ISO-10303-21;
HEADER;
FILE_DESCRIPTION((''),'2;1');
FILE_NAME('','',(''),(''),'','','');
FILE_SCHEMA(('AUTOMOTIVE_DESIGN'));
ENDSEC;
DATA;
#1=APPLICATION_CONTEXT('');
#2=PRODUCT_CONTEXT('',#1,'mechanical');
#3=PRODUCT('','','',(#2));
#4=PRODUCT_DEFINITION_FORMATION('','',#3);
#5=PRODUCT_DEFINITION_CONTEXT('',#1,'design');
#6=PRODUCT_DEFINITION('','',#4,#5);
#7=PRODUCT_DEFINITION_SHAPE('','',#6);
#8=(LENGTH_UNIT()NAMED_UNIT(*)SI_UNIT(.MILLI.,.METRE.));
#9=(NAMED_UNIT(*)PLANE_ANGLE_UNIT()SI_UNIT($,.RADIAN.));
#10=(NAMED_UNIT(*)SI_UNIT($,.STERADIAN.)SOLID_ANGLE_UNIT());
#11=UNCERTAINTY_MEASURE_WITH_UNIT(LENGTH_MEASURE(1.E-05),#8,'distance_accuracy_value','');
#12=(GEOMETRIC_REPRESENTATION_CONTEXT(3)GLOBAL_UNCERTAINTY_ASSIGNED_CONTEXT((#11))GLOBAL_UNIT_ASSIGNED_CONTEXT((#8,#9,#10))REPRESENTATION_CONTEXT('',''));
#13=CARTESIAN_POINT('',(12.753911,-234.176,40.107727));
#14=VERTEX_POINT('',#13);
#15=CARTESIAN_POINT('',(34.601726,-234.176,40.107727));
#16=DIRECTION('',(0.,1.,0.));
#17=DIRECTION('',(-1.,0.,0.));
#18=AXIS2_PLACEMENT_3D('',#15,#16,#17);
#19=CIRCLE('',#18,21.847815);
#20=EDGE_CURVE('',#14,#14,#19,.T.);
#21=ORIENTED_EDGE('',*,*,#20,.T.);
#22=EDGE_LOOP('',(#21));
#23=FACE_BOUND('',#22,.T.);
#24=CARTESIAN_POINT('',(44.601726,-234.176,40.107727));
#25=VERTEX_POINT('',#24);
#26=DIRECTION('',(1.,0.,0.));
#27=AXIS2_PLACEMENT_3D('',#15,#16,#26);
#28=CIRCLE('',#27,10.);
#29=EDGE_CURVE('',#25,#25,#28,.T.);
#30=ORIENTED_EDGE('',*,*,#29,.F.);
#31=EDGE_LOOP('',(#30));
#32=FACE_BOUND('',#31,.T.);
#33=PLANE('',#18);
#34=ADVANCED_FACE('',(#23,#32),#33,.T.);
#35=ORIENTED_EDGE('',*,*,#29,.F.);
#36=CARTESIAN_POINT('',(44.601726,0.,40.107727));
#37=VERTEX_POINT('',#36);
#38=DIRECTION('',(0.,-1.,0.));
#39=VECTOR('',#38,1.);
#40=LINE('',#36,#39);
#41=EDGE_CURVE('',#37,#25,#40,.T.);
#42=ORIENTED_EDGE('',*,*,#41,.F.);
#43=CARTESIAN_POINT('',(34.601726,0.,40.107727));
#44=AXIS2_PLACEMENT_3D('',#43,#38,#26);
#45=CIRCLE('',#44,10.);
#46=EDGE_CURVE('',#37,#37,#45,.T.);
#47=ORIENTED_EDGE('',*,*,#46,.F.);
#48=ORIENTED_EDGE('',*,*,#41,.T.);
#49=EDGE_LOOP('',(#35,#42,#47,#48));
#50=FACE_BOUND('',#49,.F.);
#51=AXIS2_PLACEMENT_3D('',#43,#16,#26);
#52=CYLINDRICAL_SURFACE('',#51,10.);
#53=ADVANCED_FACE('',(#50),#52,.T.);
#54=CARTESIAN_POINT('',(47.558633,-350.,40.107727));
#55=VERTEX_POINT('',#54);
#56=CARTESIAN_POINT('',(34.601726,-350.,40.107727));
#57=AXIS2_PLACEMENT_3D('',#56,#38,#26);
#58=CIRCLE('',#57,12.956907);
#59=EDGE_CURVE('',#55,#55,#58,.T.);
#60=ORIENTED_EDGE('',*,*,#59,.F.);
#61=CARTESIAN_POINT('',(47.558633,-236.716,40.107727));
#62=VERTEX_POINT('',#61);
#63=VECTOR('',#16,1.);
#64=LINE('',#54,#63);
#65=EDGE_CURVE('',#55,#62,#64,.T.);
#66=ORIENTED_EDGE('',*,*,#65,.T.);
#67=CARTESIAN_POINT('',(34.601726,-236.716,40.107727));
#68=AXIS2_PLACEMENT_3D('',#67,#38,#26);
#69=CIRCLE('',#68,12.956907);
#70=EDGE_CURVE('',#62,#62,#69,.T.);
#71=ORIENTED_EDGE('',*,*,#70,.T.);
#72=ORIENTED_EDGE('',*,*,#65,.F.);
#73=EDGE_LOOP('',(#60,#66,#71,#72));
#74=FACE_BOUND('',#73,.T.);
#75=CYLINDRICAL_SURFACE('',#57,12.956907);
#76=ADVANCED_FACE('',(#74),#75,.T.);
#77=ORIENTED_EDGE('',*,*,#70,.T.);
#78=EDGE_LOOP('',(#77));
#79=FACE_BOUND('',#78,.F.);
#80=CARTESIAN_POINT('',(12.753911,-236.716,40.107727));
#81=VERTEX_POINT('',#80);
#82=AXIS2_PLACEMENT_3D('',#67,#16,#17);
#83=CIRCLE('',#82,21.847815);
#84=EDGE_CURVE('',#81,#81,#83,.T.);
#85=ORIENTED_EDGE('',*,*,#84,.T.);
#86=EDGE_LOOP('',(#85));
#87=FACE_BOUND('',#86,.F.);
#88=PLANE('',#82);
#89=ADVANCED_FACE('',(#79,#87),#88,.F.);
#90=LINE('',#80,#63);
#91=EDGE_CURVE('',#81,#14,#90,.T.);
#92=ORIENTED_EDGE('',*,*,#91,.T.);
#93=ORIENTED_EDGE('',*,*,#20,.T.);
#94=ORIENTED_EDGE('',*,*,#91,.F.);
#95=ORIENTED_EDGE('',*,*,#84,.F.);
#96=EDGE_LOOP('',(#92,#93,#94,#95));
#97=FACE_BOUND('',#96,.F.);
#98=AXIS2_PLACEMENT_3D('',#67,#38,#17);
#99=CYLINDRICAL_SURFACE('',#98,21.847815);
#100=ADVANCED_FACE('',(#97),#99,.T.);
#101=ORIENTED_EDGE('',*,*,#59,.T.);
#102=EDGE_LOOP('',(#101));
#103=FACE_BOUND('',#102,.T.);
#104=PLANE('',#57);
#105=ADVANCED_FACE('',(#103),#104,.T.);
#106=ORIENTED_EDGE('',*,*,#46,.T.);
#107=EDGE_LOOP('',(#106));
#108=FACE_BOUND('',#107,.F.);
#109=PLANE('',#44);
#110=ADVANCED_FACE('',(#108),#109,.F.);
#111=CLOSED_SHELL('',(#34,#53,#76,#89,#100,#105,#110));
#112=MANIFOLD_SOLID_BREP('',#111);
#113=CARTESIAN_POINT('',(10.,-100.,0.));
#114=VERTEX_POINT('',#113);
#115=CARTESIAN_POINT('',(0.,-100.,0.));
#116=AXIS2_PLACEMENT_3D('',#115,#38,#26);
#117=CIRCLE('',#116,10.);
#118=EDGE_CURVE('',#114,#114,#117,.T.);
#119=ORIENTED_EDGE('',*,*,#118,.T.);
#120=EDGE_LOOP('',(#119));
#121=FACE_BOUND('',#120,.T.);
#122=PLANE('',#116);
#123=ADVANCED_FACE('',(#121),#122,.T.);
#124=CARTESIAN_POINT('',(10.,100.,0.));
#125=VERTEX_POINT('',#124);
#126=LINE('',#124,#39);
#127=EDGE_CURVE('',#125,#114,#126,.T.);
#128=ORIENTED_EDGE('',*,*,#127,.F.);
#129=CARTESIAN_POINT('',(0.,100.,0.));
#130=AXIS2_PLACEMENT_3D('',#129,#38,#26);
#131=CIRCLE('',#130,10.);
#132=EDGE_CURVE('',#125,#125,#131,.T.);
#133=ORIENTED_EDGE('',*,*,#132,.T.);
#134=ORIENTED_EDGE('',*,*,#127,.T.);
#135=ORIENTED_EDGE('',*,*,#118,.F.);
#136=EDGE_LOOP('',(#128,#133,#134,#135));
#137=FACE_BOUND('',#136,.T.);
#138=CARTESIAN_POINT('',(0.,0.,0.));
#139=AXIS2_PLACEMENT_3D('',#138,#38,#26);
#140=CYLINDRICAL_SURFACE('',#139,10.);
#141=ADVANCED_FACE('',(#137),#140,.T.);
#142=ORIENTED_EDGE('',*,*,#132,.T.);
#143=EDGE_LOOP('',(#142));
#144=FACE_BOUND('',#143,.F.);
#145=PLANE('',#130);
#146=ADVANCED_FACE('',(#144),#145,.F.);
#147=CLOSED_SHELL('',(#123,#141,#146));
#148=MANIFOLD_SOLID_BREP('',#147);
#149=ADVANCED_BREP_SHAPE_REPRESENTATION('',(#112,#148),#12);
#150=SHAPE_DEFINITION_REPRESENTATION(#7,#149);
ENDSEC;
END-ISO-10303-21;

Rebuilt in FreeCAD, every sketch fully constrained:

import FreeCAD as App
import Part
import Sketcher

V = App.Vector

doc = App.newDocument("Part")
body = doc.addObject("PartDesign::Body", "Body")

# Sketch on XZ plane
sketch1 = doc.addObject("Sketcher::SketchObject", "Sketch")
body.addObject(sketch1)
sketch1.AttachmentSupport = (doc.XZ_Plane, [""])
sketch1.MapMode = "FlatFace"
sketch1.addGeometry(Part.Circle(V(0, 0, 0), V(0, 0, 1), 10), False)
sketch1.addConstraint(Sketcher.Constraint("Coincident", 0, 3, -1, 1))
sketch1.addConstraint(Sketcher.Constraint("Diameter", 0, 20.0))
pad1 = doc.addObject("PartDesign::Pad", "Pad")
body.addObject(pad1)
pad1.Profile = sketch1
pad1.Length = 200
pad1.Midplane = True
body2 = doc.addObject("PartDesign::Body", "Body001")

# Sketch on XZ plane
sketch2 = doc.addObject("Sketcher::SketchObject", "Sketch001")
body2.addObject(sketch2)
sketch2.AttachmentSupport = (doc.getObject("XZ_Plane001"), [""])
sketch2.MapMode = "FlatFace"
sketch2.addGeometry(Part.Circle(V(35, 40, 0), V(0, 0, 1), 10), False)
sketch2.addConstraint(Sketcher.Constraint("Diameter", 0, 20.0))
sketch2.addConstraint(Sketcher.Constraint("DistanceX", -1, 1, 0, 3, 34.601726))
sketch2.addConstraint(Sketcher.Constraint("DistanceY", -1, 1, 0, 3, 40.107727))
pad2 = doc.addObject("PartDesign::Pad", "Pad001")
body2.addObject(pad2)
pad2.Profile = sketch2
pad2.Length = 350

# Sketch on XZ plane
sketch3 = doc.addObject("Sketcher::SketchObject", "Sketch002")
body2.addObject(sketch3)
sketch3.AttachmentSupport = (doc.getObject("XZ_Plane001"), [""])
sketch3.MapMode = "FlatFace"
sketch3.AttachmentOffset = App.Placement(V(0, 0, 350), App.Rotation())
sketch3.addGeometry(Part.Circle(V(35, 40, 0), V(0, 0, 1), 13), False)
sketch3.addConstraint(Sketcher.Constraint("Diameter", 0, 25.913814))
sketch3.addConstraint(Sketcher.Constraint("DistanceX", -1, 1, 0, 3, 34.601726))
sketch3.addConstraint(Sketcher.Constraint("DistanceY", -1, 1, 0, 3, 40.107727))
pad3 = doc.addObject("PartDesign::Pad", "Pad002")
body2.addObject(pad3)
pad3.Profile = sketch3
pad3.Length = 113.284
pad3.Reversed = True

# Sketch on XZ plane
sketch4 = doc.addObject("Sketcher::SketchObject", "Sketch003")
body2.addObject(sketch4)
sketch4.AttachmentSupport = (doc.getObject("XZ_Plane001"), [""])
sketch4.MapMode = "FlatFace"
sketch4.AttachmentOffset = App.Placement(V(0, 0, 236.716), App.Rotation())
sketch4.addGeometry(Part.Circle(V(35, 40, 0), V(0, 0, 1), 22), False)
sketch4.addConstraint(Sketcher.Constraint("Diameter", 0, 43.69563))
sketch4.addConstraint(Sketcher.Constraint("DistanceX", -1, 1, 0, 3, 34.601726))
sketch4.addConstraint(Sketcher.Constraint("DistanceY", -1, 1, 0, 3, 40.107727))
pad4 = doc.addObject("PartDesign::Pad", "Pad003")
body2.addObject(pad4)
pad4.Profile = sketch4
pad4.Length = 2.54
pad4.Reversed = True

doc.recompute()
